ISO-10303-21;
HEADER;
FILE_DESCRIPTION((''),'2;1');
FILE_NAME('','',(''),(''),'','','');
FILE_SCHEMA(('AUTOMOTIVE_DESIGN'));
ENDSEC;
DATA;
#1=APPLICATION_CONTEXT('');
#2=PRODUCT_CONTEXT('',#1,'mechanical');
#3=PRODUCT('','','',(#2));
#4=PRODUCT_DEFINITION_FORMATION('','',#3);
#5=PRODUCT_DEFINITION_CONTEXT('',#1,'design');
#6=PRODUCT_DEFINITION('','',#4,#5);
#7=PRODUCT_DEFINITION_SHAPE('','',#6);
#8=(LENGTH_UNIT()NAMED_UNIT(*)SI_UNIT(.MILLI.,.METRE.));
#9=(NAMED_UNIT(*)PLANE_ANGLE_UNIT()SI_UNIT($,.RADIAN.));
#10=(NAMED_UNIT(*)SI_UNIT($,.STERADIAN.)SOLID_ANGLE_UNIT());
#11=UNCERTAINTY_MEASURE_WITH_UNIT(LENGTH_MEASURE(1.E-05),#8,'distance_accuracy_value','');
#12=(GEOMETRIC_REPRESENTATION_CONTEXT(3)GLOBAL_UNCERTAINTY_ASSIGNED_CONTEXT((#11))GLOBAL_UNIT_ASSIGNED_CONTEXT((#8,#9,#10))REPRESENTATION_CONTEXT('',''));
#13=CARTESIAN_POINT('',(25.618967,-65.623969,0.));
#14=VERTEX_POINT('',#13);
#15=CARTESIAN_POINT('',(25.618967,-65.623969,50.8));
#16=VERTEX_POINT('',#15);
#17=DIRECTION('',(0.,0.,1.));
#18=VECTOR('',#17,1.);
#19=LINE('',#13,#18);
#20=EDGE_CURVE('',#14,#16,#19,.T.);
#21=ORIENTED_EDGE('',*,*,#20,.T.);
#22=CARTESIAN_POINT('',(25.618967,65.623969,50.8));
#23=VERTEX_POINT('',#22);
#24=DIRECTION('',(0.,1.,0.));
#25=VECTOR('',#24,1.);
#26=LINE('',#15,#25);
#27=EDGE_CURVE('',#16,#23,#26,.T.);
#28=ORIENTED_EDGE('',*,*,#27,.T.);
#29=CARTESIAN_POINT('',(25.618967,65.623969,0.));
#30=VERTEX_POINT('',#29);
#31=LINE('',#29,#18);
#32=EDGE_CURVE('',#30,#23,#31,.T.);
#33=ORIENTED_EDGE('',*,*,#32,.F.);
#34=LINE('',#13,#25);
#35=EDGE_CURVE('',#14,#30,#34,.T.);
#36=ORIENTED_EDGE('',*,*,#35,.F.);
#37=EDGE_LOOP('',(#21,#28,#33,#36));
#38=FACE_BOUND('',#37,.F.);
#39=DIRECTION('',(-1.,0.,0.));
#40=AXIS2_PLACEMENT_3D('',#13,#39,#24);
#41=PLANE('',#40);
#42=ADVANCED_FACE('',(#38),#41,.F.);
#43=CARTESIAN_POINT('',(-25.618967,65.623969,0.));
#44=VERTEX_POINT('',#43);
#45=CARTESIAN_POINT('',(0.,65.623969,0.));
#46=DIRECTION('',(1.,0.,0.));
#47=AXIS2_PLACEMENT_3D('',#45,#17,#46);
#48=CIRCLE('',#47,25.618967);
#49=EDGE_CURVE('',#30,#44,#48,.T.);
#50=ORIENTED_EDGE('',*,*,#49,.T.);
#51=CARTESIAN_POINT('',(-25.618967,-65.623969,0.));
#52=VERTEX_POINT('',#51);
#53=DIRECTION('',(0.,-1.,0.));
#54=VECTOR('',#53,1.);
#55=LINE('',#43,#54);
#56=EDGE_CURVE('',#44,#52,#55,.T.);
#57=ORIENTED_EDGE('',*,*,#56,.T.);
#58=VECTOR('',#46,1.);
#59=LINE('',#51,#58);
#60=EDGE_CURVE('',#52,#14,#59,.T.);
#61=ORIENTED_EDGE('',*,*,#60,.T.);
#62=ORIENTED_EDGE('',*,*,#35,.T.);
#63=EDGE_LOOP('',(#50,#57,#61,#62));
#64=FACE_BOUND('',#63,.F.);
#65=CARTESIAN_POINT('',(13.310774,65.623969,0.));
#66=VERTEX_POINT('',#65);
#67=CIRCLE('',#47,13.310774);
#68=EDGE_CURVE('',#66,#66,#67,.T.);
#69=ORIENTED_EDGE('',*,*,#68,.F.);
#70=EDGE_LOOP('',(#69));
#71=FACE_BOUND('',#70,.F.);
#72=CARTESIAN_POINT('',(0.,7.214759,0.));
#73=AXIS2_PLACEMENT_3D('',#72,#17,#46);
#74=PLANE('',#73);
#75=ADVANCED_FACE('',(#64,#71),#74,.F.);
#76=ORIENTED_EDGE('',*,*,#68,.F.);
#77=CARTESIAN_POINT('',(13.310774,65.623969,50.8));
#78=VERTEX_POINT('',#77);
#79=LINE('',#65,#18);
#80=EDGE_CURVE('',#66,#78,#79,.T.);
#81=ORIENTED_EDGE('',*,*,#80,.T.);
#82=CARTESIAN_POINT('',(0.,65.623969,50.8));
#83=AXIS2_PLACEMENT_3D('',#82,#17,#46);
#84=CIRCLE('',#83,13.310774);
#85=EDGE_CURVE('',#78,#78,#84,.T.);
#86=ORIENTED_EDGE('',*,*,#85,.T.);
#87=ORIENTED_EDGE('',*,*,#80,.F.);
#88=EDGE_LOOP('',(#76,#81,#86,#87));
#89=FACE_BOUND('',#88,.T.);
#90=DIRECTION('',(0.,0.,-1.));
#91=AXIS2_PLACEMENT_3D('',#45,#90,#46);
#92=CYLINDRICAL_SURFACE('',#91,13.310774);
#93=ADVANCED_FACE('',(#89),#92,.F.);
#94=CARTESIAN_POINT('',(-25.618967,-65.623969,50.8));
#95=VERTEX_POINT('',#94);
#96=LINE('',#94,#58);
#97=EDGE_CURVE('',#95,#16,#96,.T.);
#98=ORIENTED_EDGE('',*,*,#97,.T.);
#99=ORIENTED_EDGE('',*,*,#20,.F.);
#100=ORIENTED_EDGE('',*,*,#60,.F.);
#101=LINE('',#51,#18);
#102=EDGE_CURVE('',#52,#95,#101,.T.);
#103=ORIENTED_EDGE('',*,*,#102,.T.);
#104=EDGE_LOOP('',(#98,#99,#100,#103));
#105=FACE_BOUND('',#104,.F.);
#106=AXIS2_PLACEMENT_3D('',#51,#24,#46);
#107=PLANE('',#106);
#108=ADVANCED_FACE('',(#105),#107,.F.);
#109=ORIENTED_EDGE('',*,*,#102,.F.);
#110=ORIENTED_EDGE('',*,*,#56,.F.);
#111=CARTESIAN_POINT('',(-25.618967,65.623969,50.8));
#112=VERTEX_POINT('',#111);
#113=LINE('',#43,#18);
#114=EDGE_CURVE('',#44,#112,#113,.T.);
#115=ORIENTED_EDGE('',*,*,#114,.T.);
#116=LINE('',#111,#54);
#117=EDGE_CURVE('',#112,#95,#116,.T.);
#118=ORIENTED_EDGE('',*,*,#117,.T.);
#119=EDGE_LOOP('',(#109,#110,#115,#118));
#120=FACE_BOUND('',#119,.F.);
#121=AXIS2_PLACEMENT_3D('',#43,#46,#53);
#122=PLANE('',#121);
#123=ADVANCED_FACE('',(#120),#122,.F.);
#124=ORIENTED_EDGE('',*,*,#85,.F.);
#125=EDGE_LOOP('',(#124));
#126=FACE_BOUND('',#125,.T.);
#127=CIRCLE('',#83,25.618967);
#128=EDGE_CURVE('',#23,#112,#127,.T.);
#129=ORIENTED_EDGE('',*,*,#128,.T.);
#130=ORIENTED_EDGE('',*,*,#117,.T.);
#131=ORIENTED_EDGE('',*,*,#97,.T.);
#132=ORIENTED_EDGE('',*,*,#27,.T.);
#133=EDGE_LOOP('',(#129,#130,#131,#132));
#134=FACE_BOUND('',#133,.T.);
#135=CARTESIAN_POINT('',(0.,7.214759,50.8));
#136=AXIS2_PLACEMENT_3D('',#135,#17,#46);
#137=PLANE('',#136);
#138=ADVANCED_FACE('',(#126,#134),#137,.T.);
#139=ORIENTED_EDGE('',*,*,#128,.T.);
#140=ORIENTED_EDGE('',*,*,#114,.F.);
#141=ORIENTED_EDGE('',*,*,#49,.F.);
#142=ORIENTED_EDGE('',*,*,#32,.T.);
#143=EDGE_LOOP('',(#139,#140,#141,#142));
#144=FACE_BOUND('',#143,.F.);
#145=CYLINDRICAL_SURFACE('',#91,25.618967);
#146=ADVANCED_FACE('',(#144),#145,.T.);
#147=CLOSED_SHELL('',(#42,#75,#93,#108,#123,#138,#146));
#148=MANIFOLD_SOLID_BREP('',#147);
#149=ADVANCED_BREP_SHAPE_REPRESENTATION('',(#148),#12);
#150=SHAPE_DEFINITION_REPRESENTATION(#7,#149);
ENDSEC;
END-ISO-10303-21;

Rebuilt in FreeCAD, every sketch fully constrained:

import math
import FreeCAD as App
import Part
import Sketcher

V = App.Vector
Q = App.Units.Quantity

doc = App.newDocument("Part")
body = doc.addObject("PartDesign::Body", "Body")

sketch1 = doc.addObject("Sketcher::SketchObject", "Sketch")
body.addObject(sketch1)
sketch1.AttachmentSupport = (doc.XY_Plane, [""])
sketch1.MapMode = "FlatFace"
sketch1.addGeometry(Part.LineSegment(V(-26, -66, 0), V(26, -66, 0)), False)
sketch1.addGeometry(Part.LineSegment(V(26, -66, 0), V(26, 66, 0)), False)
sketch1.addGeometry(Part.ArcOfCircle(Part.Circle(V(0, 66, 0), V(0, 0, 1), 26), math.radians(0), math.radians(180)), False)
sketch1.addGeometry(Part.LineSegment(V(-26, 66, 0), V(-26, -66, 0)), False)
sketch1.addGeometry(Part.Circle(V(0, 66, 0), V(0, 0, 1), 13), False)
sketch1.addConstraint(Sketcher.Constraint("Coincident", 0, 2, 1, 1))
sketch1.addConstraint(Sketcher.Constraint("Tangent", 1, 2, 2, 1))
sketch1.addConstraint(Sketcher.Constraint("Tangent", 2, 2, 3, 1))
sketch1.addConstraint(Sketcher.Constraint("Coincident", 3, 2, 0, 1))
sketch1.addConstraint(Sketcher.Constraint("Horizontal", 0))
sketch1.addConstraint(Sketcher.Constraint("Vertical", 1))
sketch1.addConstraint(Sketcher.Constraint("Vertical", 3))
sketch1.addConstraint(Sketcher.Constraint("Coincident", 4, 3, 2, 3))
sketch1.addConstraint(Sketcher.Constraint("Symmetric", 0, 2, 2, 2, -1, 1))
sketch1.addConstraint(Sketcher.Constraint("Diameter", 4, Q("26.621548 mm")))
sketch1.addConstraint(Sketcher.Constraint("Radius", 2, Q("25.618967 mm")))
sketch1.addConstraint(Sketcher.Constraint("DistanceY", 1, 1, 1, 2, Q("131.247938 mm")))
pad1 = doc.addObject("PartDesign::Pad", "Pad")
body.addObject(pad1)
pad1.Profile = sketch1
pad1.Length = Q("2 in")

doc.recompute()
